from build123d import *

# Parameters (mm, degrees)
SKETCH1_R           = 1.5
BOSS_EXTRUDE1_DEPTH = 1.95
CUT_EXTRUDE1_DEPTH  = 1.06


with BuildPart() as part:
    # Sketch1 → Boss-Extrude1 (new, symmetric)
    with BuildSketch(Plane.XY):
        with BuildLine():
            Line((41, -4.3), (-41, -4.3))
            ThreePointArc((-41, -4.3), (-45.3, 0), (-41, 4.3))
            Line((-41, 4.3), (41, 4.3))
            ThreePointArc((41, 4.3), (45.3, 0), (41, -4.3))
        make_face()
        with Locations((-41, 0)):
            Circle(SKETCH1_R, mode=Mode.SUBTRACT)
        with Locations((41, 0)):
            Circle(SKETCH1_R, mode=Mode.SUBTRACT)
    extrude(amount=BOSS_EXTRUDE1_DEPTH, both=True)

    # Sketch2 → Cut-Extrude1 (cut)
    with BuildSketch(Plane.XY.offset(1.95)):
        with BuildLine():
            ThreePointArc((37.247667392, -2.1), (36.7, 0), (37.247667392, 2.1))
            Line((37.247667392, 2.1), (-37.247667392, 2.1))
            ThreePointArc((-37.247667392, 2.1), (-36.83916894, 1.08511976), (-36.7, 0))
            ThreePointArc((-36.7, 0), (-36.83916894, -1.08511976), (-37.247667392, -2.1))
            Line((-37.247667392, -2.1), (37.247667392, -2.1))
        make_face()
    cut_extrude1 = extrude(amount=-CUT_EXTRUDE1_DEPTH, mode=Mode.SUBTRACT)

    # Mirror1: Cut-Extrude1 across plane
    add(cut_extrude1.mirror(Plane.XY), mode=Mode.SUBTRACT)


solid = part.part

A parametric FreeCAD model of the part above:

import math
import FreeCAD as App
import Part
import Sketcher

doc = App.newDocument("Part")
params = doc.addObject("Spreadsheet::Sheet", "Params")
for row, (alias, value) in enumerate([
    ("sketch1_diameter", "3 mm"),
    ("sketch1_radius", "4.3 mm"),
    ("sketch1_width", "82 mm"),
    ("pad1_length", "3.9 mm"),
    ("sketch2_radius", "4.3 mm"),
    ("pocket1_length", "1.06 mm"),
], start=1):
    params.set(f"A{row}", alias)
    params.set(f"B{row}", "=" + value)
    params.setAlias(f"B{row}", alias)

body = doc.addObject("PartDesign::Body", "Body")

# Sketch on XY plane
sketch1 = body.newObject("Sketcher::SketchObject", "Sketch")
sketch1.AttachmentSupport = (doc.getObject("XY_Plane"), [""])
sketch1.MapMode = "FlatFace"
sketch1.addGeometry(Part.LineSegment(App.Vector(-41, -4.3, 0), App.Vector(41, -4.3, 0)), False)
sketch1.addGeometry(Part.ArcOfCircle(Part.Circle(App.Vector(41, 0, 0), App.Vector(0, 0, 1), 4.3), math.radians(-90), math.radians(90)), False)
sketch1.addGeometry(Part.LineSegment(App.Vector(41, 4.3, 0), App.Vector(-41, 4.3, 0)), False)
sketch1.addGeometry(Part.ArcOfCircle(Part.Circle(App.Vector(-41, 0, 0), App.Vector(0, 0, 1), 4.3), math.radians(90), math.radians(270)), False)
sketch1.addGeometry(Part.Circle(App.Vector(41, 0, 0), App.Vector(0, 0, 1), 1.5), False)
sketch1.addGeometry(Part.Circle(App.Vector(-41, 0, 0), App.Vector(0, 0, 1), 1.5), False)
sketch1.addConstraint(Sketcher.Constraint("Tangent", 0, 2, 1, 1))
sketch1.addConstraint(Sketcher.Constraint("Tangent", 1, 2, 2, 1))
sketch1.addConstraint(Sketcher.Constraint("Tangent", 2, 2, 3, 1))
sketch1.addConstraint(Sketcher.Constraint("Tangent", 3, 2, 0, 1))
sketch1.addConstraint(Sketcher.Constraint("Horizontal", 0))
sketch1.addConstraint(Sketcher.Constraint("Horizontal", 2))
sketch1.addConstraint(Sketcher.Constraint("Coincident", 4, 3, 1, 3))
sketch1.addConstraint(Sketcher.Constraint("Coincident", 5, 3, 3, 3))
sketch1.addConstraint(Sketcher.Constraint("Equal", 4, 5))
sketch1.addConstraint(Sketcher.Constraint("Symmetric", 1, 3, 3, 3, -1, 1))
sketch1.addConstraint(Sketcher.Constraint("Diameter", 4, 3.0))
sketch1.addConstraint(Sketcher.Constraint("Radius", 1, 4.3))
sketch1.addConstraint(Sketcher.Constraint("DistanceX", 0, 1, 0, 2, 82.0))
sketch1.setExpression("Constraints[10]", "Params.sketch1_diameter")
sketch1.setExpression("Constraints[11]", "Params.sketch1_radius")
sketch1.setExpression("Constraints[12]", "Params.sketch1_width")
pad1 = body.newObject("PartDesign::Pad", "Pad")
pad1.Profile = sketch1
pad1.setExpression("Length", "Params.pad1_length")
pad1.Midplane = True

# Sketch on XY plane
sketch2 = body.newObject("Sketcher::SketchObject", "Sketch001")
sketch2.AttachmentSupport = (doc.getObject("XY_Plane"), [""])
sketch2.MapMode = "FlatFace"
sketch2.AttachmentOffset = App.Placement(App.Vector(0, 0, 1.95), App.Rotation())
sketch2.addGeometry(Part.ArcOfCircle(Part.Circle(App.Vector(41, 0, 0), App.Vector(0, 0, 1), 4.3), math.radians(151), math.radians(209)), False)
sketch2.addGeometry(Part.LineSegment(App.Vector(37.2, 2.1, 0), App.Vector(-37.2, 2.1, 0)), False)
sketch2.addGeometry(Part.ArcOfCircle(Part.Circle(App.Vector(-41, 0, 0), App.Vector(0, 0, 1), 4.3), math.radians(0), math.radians(29)), False)
sketch2.addGeometry(Part.ArcOfCircle(Part.Circle(App.Vector(-41, 0, 0), App.Vector(0, 0, 1), 4.3), math.radians(-29), math.radians(0)), False)
sketch2.addGeometry(Part.LineSegment(App.Vector(-37.2, -2.1, 0), App.Vector(37.2, -2.1, 0)), False)
sketch2.addConstraint(Sketcher.Constraint("Coincident", 0, 1, 1, 1))
sketch2.addConstraint(Sketcher.Constraint("Coincident", 1, 2, 2, 2))
sketch2.addConstraint(Sketcher.Constraint("Tangent", 2, 1, 3, 2))
sketch2.addConstraint(Sketcher.Constraint("Coincident", 3, 1, 4, 1))
sketch2.addConstraint(Sketcher.Constraint("Coincident", 4, 2, 0, 2))
sketch2.addConstraint(Sketcher.Constraint("Horizontal", 1))
sketch2.addConstraint(Sketcher.Constraint("Horizontal", 4))
sketch2.addConstraint(Sketcher.Constraint("Equal", 0, 2))
sketch2.addConstraint(Sketcher.Constraint("Equal", 2, 3))
sketch2.addConstraint(Sketcher.Constraint("Symmetric", 0, 3, 2, 3, -1, 1))
sketch2.addConstraint(Sketcher.Constraint("Symmetric", 1, 2, 3, 1, -1))
sketch2.addConstraint(Sketcher.Constraint("PointOnObject", 2, 1, -1))
sketch2.addConstraint(Sketcher.Constraint("Radius", 0, 4.3))
sketch2.addConstraint(Sketcher.Constraint("DistanceX", -1, 1, 0, 3, 41.0))
sketch2.addConstraint(Sketcher.Constraint("DistanceY", -1, 1, 0, 1, 2.1))
sketch2.setExpression("Constraints[12]", "Params.sketch2_radius")
pocket1 = body.newObject("PartDesign::Pocket", "Pocket")
pocket1.Profile = sketch2
pocket1.setExpression("Length", "Params.pocket1_length")
doc.recompute()

mirrored = body.newObject("PartDesign::Mirrored", "Mirrored")
mirrored.Originals = [pocket1]
mirrored.MirrorPlane = (doc.getObject("XY_Plane"), [""])
body.Tip = mirrored

doc.recompute()
